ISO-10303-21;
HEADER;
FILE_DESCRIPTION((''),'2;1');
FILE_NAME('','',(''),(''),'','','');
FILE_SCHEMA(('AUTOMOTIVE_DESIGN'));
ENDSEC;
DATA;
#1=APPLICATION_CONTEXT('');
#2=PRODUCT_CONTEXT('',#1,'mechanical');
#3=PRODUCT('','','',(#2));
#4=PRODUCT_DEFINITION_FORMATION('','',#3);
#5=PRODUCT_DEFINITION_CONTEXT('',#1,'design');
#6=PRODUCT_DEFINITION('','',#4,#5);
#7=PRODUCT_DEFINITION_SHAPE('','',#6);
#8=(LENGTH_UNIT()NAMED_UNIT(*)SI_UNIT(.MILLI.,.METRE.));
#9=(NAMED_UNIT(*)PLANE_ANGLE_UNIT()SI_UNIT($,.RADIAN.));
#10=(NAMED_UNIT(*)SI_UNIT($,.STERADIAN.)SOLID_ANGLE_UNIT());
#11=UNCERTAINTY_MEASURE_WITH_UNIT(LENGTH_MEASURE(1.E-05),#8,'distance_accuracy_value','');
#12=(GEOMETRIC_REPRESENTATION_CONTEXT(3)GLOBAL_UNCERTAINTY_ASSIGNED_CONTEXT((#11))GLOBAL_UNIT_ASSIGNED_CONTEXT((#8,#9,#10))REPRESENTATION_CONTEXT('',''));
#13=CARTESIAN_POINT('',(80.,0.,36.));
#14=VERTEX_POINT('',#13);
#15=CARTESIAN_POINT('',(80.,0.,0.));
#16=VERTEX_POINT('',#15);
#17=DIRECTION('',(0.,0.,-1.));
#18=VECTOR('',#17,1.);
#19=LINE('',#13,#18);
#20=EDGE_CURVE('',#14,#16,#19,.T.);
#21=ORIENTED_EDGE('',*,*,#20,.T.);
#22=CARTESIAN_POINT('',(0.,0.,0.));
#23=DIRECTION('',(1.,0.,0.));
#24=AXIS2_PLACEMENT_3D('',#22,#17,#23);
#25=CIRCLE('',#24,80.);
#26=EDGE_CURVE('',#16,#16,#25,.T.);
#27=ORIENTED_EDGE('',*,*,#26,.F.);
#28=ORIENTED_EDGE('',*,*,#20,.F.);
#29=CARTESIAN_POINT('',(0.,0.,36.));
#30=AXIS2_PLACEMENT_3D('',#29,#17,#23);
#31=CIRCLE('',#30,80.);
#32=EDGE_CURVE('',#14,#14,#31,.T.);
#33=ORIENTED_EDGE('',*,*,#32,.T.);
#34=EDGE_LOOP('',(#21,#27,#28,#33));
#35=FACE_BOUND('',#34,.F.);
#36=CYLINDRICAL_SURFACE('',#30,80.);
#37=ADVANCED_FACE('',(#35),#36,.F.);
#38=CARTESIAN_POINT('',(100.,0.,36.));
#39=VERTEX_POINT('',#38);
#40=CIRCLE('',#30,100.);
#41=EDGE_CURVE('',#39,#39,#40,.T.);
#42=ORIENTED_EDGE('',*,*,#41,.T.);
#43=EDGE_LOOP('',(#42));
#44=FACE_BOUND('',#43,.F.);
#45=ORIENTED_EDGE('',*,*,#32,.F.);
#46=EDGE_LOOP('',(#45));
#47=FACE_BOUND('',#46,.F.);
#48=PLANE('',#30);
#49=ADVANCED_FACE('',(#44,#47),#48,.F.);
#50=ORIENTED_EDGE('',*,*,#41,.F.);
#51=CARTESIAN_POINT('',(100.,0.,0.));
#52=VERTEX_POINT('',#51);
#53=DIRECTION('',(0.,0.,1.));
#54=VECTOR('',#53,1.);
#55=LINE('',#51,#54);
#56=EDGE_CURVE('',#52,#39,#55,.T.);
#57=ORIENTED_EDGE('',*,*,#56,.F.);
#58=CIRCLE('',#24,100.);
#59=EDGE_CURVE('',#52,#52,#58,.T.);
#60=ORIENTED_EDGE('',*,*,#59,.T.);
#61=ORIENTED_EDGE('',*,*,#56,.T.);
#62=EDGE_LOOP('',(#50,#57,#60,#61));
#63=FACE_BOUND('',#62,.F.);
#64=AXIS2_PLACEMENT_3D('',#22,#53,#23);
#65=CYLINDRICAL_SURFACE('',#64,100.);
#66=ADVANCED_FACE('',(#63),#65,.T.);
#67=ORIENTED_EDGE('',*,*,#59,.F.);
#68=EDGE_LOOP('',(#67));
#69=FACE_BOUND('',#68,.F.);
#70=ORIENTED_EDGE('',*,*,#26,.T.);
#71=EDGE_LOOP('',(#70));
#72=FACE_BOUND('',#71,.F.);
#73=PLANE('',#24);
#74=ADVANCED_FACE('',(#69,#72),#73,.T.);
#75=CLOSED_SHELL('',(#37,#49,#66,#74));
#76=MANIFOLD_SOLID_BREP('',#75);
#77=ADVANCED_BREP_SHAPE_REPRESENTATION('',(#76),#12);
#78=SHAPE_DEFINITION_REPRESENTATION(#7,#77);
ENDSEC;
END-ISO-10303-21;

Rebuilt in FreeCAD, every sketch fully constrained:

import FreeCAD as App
import Part
import Sketcher
Q = App.Units.Quantity

doc = App.newDocument("Part")
body = doc.addObject("PartDesign::Body", "Body")

# Sketch on XZ plane
sketch1 = body.newObject("Sketcher::SketchObject", "Sketch")
sketch1.AttachmentSupport = (doc.getObject("XZ_Plane"), [""])
sketch1.MapMode = "FlatFace"
sketch1.addGeometry([
    Part.LineSegment(App.Vector(80, 36, 0), App.Vector(80, 0, 0)),
    Part.LineSegment(App.Vector(80, 0, 0), App.Vector(100, 0, 0)),
    Part.LineSegment(App.Vector(100, 0, 0), App.Vector(100, 36, 0)),
    Part.LineSegment(App.Vector(100, 36, 0), App.Vector(80, 36, 0)),
], False)
sketch1.addConstraint([
    Sketcher.Constraint("Coincident", 0, 2, 1, 1),
    Sketcher.Constraint("Coincident", 1, 2, 2, 1),
    Sketcher.Constraint("Coincident", 2, 2, 3, 1),
    Sketcher.Constraint("Coincident", 3, 2, 0, 1),
    Sketcher.Constraint("Vertical", 0),
    Sketcher.Constraint("Horizontal", 1),
    Sketcher.Constraint("Vertical", 2),
    Sketcher.Constraint("Horizontal", 3),
    Sketcher.Constraint("PointOnObject", 0, 2, -1),
    Sketcher.Constraint("DistanceX", -1, 1, 0, 2, Q("80 mm")),
    Sketcher.Constraint("DistanceX", -1, 1, 1, 2, Q("100 mm")),
    Sketcher.Constraint("DistanceY", 0, 2, 0, 1, Q("36 mm")),
])
revolution = body.newObject("PartDesign::Revolution", "Revolution")
revolution.Profile = sketch1
revolution.ReferenceAxis = (sketch1, ["V_Axis"])
revolution.Angle = 360

doc.recompute()
